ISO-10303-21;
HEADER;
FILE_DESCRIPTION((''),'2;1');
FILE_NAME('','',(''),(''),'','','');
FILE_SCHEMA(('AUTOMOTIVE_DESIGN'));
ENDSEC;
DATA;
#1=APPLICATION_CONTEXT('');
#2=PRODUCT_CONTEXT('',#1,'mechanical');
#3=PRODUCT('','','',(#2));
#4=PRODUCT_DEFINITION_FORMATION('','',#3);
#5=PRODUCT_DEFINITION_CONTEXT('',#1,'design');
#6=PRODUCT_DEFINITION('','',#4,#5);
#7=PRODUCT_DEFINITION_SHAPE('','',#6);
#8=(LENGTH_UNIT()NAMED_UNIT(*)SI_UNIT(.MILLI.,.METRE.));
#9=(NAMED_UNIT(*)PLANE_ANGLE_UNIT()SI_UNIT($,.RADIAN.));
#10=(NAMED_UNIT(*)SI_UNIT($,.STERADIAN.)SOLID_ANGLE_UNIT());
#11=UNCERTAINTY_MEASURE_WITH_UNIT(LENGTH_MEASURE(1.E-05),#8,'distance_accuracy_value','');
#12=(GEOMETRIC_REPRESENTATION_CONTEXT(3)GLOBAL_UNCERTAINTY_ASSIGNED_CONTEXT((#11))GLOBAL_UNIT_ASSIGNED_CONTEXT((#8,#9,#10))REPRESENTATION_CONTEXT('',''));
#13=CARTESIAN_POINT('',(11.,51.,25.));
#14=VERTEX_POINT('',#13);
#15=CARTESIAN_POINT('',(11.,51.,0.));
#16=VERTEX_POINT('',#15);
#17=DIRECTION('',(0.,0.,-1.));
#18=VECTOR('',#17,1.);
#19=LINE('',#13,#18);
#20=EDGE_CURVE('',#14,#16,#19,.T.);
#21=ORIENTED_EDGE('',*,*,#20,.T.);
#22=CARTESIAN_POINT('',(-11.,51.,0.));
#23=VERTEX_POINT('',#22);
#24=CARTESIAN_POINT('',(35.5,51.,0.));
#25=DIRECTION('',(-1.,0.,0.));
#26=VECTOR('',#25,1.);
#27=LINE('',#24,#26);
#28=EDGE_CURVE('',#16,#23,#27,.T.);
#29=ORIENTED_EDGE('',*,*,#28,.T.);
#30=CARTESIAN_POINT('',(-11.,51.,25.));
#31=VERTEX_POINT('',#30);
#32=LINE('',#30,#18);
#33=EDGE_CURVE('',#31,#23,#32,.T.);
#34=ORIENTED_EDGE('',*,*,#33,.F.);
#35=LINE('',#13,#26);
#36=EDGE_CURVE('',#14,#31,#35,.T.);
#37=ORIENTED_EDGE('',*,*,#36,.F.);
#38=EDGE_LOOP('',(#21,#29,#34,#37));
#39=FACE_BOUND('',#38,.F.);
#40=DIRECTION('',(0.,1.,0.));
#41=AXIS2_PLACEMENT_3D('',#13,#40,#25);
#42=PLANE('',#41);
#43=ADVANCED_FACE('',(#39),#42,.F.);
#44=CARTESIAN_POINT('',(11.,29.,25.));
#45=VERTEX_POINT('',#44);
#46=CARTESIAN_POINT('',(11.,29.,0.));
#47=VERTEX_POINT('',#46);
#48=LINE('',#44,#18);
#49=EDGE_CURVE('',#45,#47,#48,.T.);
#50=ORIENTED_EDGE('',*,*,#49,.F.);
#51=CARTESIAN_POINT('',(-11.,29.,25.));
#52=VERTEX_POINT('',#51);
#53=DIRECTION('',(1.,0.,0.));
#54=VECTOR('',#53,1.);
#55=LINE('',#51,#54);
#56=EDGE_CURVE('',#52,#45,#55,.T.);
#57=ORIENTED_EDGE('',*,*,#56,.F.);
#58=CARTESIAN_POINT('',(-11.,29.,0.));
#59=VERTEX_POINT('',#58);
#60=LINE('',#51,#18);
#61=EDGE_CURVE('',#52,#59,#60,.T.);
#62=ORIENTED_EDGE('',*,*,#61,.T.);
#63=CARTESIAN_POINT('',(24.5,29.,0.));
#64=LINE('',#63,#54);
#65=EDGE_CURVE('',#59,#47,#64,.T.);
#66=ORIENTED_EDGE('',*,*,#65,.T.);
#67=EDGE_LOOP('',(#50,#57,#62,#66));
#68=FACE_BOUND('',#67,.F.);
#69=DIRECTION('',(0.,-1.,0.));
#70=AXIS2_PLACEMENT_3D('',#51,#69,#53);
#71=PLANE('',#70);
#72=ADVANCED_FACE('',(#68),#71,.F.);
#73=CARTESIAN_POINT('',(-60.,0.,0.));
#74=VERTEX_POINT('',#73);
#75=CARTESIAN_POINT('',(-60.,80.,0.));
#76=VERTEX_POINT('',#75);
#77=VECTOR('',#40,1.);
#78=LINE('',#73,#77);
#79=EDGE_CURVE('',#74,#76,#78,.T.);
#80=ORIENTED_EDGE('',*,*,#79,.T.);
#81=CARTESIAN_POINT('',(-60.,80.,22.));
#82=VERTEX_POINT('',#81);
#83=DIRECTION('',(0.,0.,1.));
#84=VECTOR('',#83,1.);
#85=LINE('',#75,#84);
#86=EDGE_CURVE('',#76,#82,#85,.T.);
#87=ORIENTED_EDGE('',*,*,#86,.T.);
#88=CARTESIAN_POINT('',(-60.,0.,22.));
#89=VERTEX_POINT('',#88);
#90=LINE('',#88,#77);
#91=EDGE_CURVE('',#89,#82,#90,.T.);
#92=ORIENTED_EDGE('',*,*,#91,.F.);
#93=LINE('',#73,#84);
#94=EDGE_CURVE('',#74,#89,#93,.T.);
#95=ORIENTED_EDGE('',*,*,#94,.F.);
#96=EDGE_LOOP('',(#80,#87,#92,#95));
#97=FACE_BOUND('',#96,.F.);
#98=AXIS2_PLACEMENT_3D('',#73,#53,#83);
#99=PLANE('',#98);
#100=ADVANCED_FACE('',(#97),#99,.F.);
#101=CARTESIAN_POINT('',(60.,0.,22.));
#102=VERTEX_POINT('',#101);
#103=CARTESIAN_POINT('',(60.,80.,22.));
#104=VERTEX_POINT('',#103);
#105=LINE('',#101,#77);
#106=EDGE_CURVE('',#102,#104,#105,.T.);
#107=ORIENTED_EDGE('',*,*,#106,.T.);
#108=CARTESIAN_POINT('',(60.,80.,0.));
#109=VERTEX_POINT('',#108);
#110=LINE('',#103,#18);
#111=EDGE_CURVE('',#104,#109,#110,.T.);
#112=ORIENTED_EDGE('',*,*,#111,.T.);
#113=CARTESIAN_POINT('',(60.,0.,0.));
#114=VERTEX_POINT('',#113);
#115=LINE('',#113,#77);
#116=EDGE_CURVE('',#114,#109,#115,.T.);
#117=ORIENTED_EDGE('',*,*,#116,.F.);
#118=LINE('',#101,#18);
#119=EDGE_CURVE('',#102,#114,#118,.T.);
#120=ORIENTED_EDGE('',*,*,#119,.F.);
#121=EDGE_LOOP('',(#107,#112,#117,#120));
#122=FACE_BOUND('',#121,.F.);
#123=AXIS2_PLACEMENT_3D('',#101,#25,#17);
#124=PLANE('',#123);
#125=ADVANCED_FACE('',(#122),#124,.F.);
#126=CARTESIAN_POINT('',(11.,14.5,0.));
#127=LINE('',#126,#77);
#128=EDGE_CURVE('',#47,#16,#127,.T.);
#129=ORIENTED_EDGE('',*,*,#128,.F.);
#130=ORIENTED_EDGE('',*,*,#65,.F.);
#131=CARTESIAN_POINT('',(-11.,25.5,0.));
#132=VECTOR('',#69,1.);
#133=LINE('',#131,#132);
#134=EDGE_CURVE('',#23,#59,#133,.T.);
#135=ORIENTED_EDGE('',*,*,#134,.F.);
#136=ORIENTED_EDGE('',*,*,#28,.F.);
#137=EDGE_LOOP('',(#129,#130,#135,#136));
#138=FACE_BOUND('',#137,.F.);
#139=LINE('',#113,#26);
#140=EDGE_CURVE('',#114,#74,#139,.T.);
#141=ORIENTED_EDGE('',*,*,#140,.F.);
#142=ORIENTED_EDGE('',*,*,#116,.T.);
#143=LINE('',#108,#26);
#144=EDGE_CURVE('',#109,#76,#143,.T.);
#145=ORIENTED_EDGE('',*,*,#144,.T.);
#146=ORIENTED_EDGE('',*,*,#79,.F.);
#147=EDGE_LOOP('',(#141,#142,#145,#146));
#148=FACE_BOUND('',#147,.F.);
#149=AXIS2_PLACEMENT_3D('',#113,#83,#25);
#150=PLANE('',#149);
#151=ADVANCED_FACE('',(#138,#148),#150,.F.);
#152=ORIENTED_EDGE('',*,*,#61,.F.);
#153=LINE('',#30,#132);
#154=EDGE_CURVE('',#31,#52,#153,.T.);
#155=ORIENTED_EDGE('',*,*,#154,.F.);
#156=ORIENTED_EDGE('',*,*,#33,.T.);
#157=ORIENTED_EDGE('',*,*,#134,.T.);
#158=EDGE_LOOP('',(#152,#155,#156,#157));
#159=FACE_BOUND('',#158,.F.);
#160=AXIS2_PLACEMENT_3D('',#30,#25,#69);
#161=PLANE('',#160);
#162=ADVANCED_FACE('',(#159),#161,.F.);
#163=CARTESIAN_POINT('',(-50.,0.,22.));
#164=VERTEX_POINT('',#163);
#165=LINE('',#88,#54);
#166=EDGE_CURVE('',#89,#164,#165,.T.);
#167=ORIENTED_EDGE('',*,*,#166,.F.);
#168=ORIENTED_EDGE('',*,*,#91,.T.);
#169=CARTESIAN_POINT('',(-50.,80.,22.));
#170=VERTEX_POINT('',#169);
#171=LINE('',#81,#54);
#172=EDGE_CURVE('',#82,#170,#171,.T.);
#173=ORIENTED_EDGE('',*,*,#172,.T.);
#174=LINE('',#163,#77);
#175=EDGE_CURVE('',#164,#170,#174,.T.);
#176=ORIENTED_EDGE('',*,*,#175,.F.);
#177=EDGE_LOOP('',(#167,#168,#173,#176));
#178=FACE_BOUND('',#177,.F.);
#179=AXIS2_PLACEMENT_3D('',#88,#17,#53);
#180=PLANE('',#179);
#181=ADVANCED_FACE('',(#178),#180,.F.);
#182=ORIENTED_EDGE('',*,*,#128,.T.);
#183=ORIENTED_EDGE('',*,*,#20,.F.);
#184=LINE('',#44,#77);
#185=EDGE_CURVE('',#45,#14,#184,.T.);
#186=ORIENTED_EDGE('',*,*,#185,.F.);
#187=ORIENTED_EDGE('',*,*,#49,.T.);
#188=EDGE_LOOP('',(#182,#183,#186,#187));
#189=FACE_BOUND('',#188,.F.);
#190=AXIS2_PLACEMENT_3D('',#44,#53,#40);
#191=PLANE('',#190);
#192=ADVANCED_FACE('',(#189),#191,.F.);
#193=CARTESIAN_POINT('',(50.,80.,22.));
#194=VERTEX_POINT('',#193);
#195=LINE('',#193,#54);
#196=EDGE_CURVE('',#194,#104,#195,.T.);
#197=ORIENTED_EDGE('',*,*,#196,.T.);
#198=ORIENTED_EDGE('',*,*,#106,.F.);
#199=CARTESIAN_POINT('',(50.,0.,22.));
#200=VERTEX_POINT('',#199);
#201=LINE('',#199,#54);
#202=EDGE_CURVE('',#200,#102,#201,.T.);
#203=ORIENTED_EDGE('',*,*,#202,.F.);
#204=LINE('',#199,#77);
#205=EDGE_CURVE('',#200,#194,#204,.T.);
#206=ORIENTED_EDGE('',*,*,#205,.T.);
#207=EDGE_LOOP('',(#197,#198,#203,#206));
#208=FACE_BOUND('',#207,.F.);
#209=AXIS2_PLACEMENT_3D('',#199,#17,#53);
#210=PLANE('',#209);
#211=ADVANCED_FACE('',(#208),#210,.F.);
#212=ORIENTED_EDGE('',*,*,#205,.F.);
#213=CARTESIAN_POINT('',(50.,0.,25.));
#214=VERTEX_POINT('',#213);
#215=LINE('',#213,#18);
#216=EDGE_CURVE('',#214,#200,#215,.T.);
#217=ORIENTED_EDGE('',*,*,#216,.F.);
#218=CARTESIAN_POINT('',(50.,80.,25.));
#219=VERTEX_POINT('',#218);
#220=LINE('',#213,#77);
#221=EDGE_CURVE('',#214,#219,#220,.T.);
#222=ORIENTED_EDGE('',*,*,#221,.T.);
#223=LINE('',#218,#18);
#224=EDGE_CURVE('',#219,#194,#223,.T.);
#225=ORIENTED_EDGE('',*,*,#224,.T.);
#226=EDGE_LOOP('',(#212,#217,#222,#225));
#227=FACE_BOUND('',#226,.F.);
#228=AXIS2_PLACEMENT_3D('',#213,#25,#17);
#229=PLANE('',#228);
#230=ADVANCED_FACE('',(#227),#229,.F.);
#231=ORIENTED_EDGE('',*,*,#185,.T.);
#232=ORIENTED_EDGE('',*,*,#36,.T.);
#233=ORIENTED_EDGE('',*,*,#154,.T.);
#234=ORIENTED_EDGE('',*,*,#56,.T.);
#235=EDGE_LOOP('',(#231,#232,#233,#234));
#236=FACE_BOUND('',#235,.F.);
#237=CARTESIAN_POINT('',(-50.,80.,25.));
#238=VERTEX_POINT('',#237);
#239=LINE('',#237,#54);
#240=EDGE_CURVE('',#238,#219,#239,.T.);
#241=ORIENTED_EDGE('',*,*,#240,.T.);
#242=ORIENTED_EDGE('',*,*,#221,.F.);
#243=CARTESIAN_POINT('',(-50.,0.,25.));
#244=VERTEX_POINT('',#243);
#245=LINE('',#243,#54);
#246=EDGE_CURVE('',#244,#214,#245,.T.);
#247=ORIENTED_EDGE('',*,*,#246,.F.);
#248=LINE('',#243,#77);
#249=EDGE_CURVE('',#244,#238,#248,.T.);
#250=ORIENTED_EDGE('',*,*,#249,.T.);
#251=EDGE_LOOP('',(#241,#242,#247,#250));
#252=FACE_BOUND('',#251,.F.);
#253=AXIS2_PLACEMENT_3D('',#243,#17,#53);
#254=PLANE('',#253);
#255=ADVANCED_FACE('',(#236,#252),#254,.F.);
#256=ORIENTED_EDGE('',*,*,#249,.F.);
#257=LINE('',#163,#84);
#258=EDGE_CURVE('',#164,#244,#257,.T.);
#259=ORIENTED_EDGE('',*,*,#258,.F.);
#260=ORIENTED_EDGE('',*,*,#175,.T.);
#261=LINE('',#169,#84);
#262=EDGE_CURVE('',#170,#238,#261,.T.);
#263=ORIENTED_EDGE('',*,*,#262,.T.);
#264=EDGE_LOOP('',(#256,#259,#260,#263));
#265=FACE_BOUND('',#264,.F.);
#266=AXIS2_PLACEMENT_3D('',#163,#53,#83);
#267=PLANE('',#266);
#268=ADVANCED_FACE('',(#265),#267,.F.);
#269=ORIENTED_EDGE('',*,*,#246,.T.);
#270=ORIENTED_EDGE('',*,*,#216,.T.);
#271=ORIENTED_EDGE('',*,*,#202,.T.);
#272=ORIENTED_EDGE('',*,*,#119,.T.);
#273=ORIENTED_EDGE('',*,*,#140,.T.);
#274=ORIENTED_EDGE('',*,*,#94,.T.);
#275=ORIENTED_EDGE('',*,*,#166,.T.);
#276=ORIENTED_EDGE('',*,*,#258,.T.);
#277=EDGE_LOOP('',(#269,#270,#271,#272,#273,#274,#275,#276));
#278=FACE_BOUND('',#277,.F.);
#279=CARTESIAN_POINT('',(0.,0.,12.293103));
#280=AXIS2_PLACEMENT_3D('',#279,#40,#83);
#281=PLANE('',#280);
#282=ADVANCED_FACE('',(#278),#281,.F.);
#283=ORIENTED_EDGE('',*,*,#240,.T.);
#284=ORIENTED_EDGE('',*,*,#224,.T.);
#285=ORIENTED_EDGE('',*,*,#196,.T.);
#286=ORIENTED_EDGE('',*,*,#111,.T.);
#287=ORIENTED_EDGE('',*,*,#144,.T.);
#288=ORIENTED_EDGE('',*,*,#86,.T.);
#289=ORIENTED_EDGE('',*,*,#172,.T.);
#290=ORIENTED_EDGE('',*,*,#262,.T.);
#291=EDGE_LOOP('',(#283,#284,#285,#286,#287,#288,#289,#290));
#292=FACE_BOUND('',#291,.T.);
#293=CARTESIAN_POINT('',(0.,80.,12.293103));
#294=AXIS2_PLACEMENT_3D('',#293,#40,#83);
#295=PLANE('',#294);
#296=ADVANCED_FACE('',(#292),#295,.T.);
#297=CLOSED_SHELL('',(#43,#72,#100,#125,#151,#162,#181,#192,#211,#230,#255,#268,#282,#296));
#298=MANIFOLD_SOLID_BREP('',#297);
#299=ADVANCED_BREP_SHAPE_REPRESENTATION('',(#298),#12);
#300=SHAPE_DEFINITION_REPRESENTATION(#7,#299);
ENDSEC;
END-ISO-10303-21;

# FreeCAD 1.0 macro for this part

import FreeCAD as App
import Part
import Sketcher
from FreeCAD import Vector

doc = App.newDocument("Part")
body = doc.addObject("PartDesign::Body", "Body")

# Sketch on XZ plane
sketch1 = body.newObject("Sketcher::SketchObject", "Sketch")
sketch1.AttachmentSupport = (doc.getObject("XZ_Plane"), [""])
sketch1.MapMode = "FlatFace"
sketch1.addGeometry([
    Part.LineSegment(Vector(-60, 22, 0), Vector(-60, 0, 0)),  # 0
    Part.LineSegment(Vector(-60, 0, 0), Vector(60, 0, 0)),  # 1
    Part.LineSegment(Vector(60, 0, 0), Vector(60, 22, 0)),  # 2
    Part.LineSegment(Vector(60, 22, 0), Vector(50, 22, 0)),  # 3
    Part.LineSegment(Vector(50, 22, 0), Vector(50, 25, 0)),  # 4
    Part.LineSegment(Vector(50, 25, 0), Vector(-50, 25, 0)),  # 5
    Part.LineSegment(Vector(-50, 25, 0), Vector(-50, 22, 0)),  # 6
    Part.LineSegment(Vector(-50, 22, 0), Vector(-60, 22, 0)),  # 7
], False)
sketch1.addConstraint([
    Sketcher.Constraint("Coincident", 0, 2, 1, 1),
    Sketcher.Constraint("Coincident", 1, 2, 2, 1),
    Sketcher.Constraint("Coincident", 2, 2, 3, 1),
    Sketcher.Constraint("Coincident", 3, 2, 4, 1),
    Sketcher.Constraint("Coincident", 4, 2, 5, 1),
    Sketcher.Constraint("Coincident", 5, 2, 6, 1),
    Sketcher.Constraint("Coincident", 6, 2, 7, 1),
    Sketcher.Constraint("Coincident", 7, 2, 0, 1),
    Sketcher.Constraint("Vertical", 0),
    Sketcher.Constraint("Horizontal", 1),
    Sketcher.Constraint("Vertical", 2),
    Sketcher.Constraint("Horizontal", 3),
    Sketcher.Constraint("Vertical", 4),
    Sketcher.Constraint("Horizontal", 5),
    Sketcher.Constraint("Vertical", 6),
    Sketcher.Constraint("Horizontal", 7),
    Sketcher.Constraint("Symmetric", 0, 2, 1, 2, -1, 1),
    Sketcher.Constraint("Symmetric", 3, 2, 6, 2, -2),
    Sketcher.Constraint("DistanceX", 1, 1, 1, 2, 120.0),
    Sketcher.Constraint("DistanceX", 3, 2, 3, 1, 10.0),
    Sketcher.Constraint("DistanceY", 0, 2, 0, 1, 22.0),
    Sketcher.Constraint("DistanceY", 4, 1, 4, 2, 3.0),
])
pad1 = body.newObject("PartDesign::Pad", "Pad")
pad1.Profile = sketch1
pad1.Length = 80
pad1.Reversed = True

# Sketch on XY plane
sketch2 = body.newObject("Sketcher::SketchObject", "Sketch001")
sketch2.AttachmentSupport = (doc.getObject("XY_Plane"), [""])
sketch2.MapMode = "FlatFace"
sketch2.AttachmentOffset = App.Placement(Vector(0, 0, 25), App.Rotation())
sketch2.addGeometry([
    Part.LineSegment(Vector(-11, 51, 0), Vector(-11, 29, 0)),
    Part.LineSegment(Vector(-11, 29, 0), Vector(11, 29, 0)),
    Part.LineSegment(Vector(11, 29, 0), Vector(11, 51, 0)),
    Part.LineSegment(Vector(11, 51, 0), Vector(-11, 51, 0)),
], False)
sketch2.addConstraint([
    Sketcher.Constraint("Coincident", 0, 2, 1, 1),
    Sketcher.Constraint("Coincident", 1, 2, 2, 1),
    Sketcher.Constraint("Coincident", 2, 2, 3, 1),
    Sketcher.Constraint("Coincident", 3, 2, 0, 1),
    Sketcher.Constraint("Vertical", 0),
    Sketcher.Constraint("Horizontal", 1),
    Sketcher.Constraint("Vertical", 2),
    Sketcher.Constraint("Horizontal", 3),
    Sketcher.Constraint("Equal", 3, 0),
    Sketcher.Constraint("DistanceX", 1, 1, 1, 2, 22.0),
    Sketcher.Constraint("DistanceX", 0, 2, -1, 1, 11.0),
    Sketcher.Constraint("DistanceY", -1, 1, 0, 2, 29.0),
])
pocket1 = body.newObject("PartDesign::Pocket", "Pocket")
pocket1.Profile = sketch2
pocket1.Length = 41.8556

doc.recompute()
